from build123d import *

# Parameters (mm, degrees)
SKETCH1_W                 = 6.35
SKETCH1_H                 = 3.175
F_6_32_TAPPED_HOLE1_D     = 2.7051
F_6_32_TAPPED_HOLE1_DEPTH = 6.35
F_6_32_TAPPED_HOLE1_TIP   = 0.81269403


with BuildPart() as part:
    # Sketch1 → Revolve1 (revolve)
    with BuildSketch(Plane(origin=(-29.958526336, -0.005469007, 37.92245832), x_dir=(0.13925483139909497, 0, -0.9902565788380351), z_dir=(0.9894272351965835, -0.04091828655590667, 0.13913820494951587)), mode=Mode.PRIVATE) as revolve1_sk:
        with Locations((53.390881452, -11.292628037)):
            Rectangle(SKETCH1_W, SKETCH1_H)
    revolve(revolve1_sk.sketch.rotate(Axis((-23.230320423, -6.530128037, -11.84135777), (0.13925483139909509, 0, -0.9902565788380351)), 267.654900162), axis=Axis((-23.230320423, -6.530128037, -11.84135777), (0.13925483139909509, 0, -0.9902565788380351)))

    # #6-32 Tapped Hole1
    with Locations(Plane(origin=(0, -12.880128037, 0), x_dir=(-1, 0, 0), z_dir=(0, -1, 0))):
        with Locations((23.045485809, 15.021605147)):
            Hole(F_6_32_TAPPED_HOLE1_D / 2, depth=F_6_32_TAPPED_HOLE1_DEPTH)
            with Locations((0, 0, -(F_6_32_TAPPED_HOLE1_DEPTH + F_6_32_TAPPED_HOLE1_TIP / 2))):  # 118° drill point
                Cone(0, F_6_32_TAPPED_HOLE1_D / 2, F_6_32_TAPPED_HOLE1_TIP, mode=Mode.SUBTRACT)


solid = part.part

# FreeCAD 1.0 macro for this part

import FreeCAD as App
import Part
import Sketcher
Q = App.Units.Quantity


def add_polygon(sketch, points):
    """Adds a closed chain of lines whose ends are joined by coincident constraints."""
    first, n = sketch.GeometryCount, len(points)
    for a, b in zip(points, points[1:] + points[:1]):
        sketch.addGeometry(Part.LineSegment(App.Vector(*a, 0), App.Vector(*b, 0)), False)
    for i in range(n):
        sketch.addConstraint(Sketcher.Constraint("Coincident", first + i, 2, first + (i + 1) % n, 1))

doc = App.newDocument("Part")
body = doc.addObject("PartDesign::Body", "Body")

# Sketch on an angled plane
sketch1 = doc.addObject("Sketcher::SketchObject", "Sketch")
body.addObject(sketch1)
sketch1.Placement = App.Placement(App.Vector(-29.958526, -0.005469, 37.922458), App.Rotation(App.Vector(0.139254831, 0, -0.990256579), App.Vector(0.040519603, 0.999162496, 0.005698069), App.Vector(0.989427235, -0.040918287, 0.139138205), "ZXY"))
add_polygon(sketch1, [(50.2, -9.7), (50.2, -12.9), (56.6, -12.9), (56.6, -9.7)])  # lines 0-3
sketch1.addGeometry(Part.LineSegment(App.Vector(50.2, -6.5, 0), App.Vector(56.6, -6.5, 0)), True)  # axis
sketch1.addConstraint([
    Sketcher.Constraint("Vertical", 0),
    Sketcher.Constraint("Horizontal", 1),
    Sketcher.Constraint("Vertical", 2),
    Sketcher.Constraint("Horizontal", 3),
    Sketcher.Constraint("Horizontal", 4),
    Sketcher.Constraint("Vertical", 3, 2, 4, 1),
    Sketcher.Constraint("Vertical", 2, 2, 4, 2),
    Sketcher.Constraint("DistanceX", 1, 1, 1, 2, Q("0.25 in")),
    Sketcher.Constraint("DistanceY", 0, 2, 0, 1, Q("0.125 in")),
    Sketcher.Constraint("DistanceY", 0, 2, 4, 1, Q("0.25 in")),
    Sketcher.Constraint("DistanceX", -1, 1, 0, 2, Q("50.215881 mm")),
    Sketcher.Constraint("DistanceY", 0, 2, -1, 1, Q("12.880128 mm")),
])
revolution = doc.addObject("PartDesign::Revolution", "Revolution")
body.addObject(revolution)
revolution.Profile = sketch1
revolution.ReferenceAxis = (sketch1, ["Axis0"])
revolution.Angle = 360

# Sketch on XZ plane
sketch2 = doc.addObject("Sketcher::SketchObject", "Sketch001")
body.addObject(sketch2)
sketch2.AttachmentSupport = (doc.XZ_Plane, [""])
sketch2.MapMode = "FlatFace"
sketch2.AttachmentOffset = App.Placement(App.Vector(0, 0, 12.880128), App.Rotation())
sketch2.addGeometry(Part.Circle(App.Vector(-23, -15, 0), App.Vector(0, 0, 1), 1.4), False)
sketch2.addConstraint([
    Sketcher.Constraint("Diameter", 0, Q("0.1065 in")),
    Sketcher.Constraint("DistanceX", 0, 3, -1, 1, Q("23.045486 mm")),
    Sketcher.Constraint("DistanceY", 0, 3, -1, 1, Q("15.021605 mm")),
])
doc.recompute()
hole = doc.addObject("PartDesign::Hole", "Hole")
body.addObject(hole)
hole.Profile = sketch2
hole.ThreadType = "None"
hole.Diameter = Q("0.1065 in")
hole.DepthType = "Dimension"
hole.Depth = Q("0.25 in")
hole.DrillPoint = "Angled"
hole.DrillPointAngle = 118

doc.recompute()
